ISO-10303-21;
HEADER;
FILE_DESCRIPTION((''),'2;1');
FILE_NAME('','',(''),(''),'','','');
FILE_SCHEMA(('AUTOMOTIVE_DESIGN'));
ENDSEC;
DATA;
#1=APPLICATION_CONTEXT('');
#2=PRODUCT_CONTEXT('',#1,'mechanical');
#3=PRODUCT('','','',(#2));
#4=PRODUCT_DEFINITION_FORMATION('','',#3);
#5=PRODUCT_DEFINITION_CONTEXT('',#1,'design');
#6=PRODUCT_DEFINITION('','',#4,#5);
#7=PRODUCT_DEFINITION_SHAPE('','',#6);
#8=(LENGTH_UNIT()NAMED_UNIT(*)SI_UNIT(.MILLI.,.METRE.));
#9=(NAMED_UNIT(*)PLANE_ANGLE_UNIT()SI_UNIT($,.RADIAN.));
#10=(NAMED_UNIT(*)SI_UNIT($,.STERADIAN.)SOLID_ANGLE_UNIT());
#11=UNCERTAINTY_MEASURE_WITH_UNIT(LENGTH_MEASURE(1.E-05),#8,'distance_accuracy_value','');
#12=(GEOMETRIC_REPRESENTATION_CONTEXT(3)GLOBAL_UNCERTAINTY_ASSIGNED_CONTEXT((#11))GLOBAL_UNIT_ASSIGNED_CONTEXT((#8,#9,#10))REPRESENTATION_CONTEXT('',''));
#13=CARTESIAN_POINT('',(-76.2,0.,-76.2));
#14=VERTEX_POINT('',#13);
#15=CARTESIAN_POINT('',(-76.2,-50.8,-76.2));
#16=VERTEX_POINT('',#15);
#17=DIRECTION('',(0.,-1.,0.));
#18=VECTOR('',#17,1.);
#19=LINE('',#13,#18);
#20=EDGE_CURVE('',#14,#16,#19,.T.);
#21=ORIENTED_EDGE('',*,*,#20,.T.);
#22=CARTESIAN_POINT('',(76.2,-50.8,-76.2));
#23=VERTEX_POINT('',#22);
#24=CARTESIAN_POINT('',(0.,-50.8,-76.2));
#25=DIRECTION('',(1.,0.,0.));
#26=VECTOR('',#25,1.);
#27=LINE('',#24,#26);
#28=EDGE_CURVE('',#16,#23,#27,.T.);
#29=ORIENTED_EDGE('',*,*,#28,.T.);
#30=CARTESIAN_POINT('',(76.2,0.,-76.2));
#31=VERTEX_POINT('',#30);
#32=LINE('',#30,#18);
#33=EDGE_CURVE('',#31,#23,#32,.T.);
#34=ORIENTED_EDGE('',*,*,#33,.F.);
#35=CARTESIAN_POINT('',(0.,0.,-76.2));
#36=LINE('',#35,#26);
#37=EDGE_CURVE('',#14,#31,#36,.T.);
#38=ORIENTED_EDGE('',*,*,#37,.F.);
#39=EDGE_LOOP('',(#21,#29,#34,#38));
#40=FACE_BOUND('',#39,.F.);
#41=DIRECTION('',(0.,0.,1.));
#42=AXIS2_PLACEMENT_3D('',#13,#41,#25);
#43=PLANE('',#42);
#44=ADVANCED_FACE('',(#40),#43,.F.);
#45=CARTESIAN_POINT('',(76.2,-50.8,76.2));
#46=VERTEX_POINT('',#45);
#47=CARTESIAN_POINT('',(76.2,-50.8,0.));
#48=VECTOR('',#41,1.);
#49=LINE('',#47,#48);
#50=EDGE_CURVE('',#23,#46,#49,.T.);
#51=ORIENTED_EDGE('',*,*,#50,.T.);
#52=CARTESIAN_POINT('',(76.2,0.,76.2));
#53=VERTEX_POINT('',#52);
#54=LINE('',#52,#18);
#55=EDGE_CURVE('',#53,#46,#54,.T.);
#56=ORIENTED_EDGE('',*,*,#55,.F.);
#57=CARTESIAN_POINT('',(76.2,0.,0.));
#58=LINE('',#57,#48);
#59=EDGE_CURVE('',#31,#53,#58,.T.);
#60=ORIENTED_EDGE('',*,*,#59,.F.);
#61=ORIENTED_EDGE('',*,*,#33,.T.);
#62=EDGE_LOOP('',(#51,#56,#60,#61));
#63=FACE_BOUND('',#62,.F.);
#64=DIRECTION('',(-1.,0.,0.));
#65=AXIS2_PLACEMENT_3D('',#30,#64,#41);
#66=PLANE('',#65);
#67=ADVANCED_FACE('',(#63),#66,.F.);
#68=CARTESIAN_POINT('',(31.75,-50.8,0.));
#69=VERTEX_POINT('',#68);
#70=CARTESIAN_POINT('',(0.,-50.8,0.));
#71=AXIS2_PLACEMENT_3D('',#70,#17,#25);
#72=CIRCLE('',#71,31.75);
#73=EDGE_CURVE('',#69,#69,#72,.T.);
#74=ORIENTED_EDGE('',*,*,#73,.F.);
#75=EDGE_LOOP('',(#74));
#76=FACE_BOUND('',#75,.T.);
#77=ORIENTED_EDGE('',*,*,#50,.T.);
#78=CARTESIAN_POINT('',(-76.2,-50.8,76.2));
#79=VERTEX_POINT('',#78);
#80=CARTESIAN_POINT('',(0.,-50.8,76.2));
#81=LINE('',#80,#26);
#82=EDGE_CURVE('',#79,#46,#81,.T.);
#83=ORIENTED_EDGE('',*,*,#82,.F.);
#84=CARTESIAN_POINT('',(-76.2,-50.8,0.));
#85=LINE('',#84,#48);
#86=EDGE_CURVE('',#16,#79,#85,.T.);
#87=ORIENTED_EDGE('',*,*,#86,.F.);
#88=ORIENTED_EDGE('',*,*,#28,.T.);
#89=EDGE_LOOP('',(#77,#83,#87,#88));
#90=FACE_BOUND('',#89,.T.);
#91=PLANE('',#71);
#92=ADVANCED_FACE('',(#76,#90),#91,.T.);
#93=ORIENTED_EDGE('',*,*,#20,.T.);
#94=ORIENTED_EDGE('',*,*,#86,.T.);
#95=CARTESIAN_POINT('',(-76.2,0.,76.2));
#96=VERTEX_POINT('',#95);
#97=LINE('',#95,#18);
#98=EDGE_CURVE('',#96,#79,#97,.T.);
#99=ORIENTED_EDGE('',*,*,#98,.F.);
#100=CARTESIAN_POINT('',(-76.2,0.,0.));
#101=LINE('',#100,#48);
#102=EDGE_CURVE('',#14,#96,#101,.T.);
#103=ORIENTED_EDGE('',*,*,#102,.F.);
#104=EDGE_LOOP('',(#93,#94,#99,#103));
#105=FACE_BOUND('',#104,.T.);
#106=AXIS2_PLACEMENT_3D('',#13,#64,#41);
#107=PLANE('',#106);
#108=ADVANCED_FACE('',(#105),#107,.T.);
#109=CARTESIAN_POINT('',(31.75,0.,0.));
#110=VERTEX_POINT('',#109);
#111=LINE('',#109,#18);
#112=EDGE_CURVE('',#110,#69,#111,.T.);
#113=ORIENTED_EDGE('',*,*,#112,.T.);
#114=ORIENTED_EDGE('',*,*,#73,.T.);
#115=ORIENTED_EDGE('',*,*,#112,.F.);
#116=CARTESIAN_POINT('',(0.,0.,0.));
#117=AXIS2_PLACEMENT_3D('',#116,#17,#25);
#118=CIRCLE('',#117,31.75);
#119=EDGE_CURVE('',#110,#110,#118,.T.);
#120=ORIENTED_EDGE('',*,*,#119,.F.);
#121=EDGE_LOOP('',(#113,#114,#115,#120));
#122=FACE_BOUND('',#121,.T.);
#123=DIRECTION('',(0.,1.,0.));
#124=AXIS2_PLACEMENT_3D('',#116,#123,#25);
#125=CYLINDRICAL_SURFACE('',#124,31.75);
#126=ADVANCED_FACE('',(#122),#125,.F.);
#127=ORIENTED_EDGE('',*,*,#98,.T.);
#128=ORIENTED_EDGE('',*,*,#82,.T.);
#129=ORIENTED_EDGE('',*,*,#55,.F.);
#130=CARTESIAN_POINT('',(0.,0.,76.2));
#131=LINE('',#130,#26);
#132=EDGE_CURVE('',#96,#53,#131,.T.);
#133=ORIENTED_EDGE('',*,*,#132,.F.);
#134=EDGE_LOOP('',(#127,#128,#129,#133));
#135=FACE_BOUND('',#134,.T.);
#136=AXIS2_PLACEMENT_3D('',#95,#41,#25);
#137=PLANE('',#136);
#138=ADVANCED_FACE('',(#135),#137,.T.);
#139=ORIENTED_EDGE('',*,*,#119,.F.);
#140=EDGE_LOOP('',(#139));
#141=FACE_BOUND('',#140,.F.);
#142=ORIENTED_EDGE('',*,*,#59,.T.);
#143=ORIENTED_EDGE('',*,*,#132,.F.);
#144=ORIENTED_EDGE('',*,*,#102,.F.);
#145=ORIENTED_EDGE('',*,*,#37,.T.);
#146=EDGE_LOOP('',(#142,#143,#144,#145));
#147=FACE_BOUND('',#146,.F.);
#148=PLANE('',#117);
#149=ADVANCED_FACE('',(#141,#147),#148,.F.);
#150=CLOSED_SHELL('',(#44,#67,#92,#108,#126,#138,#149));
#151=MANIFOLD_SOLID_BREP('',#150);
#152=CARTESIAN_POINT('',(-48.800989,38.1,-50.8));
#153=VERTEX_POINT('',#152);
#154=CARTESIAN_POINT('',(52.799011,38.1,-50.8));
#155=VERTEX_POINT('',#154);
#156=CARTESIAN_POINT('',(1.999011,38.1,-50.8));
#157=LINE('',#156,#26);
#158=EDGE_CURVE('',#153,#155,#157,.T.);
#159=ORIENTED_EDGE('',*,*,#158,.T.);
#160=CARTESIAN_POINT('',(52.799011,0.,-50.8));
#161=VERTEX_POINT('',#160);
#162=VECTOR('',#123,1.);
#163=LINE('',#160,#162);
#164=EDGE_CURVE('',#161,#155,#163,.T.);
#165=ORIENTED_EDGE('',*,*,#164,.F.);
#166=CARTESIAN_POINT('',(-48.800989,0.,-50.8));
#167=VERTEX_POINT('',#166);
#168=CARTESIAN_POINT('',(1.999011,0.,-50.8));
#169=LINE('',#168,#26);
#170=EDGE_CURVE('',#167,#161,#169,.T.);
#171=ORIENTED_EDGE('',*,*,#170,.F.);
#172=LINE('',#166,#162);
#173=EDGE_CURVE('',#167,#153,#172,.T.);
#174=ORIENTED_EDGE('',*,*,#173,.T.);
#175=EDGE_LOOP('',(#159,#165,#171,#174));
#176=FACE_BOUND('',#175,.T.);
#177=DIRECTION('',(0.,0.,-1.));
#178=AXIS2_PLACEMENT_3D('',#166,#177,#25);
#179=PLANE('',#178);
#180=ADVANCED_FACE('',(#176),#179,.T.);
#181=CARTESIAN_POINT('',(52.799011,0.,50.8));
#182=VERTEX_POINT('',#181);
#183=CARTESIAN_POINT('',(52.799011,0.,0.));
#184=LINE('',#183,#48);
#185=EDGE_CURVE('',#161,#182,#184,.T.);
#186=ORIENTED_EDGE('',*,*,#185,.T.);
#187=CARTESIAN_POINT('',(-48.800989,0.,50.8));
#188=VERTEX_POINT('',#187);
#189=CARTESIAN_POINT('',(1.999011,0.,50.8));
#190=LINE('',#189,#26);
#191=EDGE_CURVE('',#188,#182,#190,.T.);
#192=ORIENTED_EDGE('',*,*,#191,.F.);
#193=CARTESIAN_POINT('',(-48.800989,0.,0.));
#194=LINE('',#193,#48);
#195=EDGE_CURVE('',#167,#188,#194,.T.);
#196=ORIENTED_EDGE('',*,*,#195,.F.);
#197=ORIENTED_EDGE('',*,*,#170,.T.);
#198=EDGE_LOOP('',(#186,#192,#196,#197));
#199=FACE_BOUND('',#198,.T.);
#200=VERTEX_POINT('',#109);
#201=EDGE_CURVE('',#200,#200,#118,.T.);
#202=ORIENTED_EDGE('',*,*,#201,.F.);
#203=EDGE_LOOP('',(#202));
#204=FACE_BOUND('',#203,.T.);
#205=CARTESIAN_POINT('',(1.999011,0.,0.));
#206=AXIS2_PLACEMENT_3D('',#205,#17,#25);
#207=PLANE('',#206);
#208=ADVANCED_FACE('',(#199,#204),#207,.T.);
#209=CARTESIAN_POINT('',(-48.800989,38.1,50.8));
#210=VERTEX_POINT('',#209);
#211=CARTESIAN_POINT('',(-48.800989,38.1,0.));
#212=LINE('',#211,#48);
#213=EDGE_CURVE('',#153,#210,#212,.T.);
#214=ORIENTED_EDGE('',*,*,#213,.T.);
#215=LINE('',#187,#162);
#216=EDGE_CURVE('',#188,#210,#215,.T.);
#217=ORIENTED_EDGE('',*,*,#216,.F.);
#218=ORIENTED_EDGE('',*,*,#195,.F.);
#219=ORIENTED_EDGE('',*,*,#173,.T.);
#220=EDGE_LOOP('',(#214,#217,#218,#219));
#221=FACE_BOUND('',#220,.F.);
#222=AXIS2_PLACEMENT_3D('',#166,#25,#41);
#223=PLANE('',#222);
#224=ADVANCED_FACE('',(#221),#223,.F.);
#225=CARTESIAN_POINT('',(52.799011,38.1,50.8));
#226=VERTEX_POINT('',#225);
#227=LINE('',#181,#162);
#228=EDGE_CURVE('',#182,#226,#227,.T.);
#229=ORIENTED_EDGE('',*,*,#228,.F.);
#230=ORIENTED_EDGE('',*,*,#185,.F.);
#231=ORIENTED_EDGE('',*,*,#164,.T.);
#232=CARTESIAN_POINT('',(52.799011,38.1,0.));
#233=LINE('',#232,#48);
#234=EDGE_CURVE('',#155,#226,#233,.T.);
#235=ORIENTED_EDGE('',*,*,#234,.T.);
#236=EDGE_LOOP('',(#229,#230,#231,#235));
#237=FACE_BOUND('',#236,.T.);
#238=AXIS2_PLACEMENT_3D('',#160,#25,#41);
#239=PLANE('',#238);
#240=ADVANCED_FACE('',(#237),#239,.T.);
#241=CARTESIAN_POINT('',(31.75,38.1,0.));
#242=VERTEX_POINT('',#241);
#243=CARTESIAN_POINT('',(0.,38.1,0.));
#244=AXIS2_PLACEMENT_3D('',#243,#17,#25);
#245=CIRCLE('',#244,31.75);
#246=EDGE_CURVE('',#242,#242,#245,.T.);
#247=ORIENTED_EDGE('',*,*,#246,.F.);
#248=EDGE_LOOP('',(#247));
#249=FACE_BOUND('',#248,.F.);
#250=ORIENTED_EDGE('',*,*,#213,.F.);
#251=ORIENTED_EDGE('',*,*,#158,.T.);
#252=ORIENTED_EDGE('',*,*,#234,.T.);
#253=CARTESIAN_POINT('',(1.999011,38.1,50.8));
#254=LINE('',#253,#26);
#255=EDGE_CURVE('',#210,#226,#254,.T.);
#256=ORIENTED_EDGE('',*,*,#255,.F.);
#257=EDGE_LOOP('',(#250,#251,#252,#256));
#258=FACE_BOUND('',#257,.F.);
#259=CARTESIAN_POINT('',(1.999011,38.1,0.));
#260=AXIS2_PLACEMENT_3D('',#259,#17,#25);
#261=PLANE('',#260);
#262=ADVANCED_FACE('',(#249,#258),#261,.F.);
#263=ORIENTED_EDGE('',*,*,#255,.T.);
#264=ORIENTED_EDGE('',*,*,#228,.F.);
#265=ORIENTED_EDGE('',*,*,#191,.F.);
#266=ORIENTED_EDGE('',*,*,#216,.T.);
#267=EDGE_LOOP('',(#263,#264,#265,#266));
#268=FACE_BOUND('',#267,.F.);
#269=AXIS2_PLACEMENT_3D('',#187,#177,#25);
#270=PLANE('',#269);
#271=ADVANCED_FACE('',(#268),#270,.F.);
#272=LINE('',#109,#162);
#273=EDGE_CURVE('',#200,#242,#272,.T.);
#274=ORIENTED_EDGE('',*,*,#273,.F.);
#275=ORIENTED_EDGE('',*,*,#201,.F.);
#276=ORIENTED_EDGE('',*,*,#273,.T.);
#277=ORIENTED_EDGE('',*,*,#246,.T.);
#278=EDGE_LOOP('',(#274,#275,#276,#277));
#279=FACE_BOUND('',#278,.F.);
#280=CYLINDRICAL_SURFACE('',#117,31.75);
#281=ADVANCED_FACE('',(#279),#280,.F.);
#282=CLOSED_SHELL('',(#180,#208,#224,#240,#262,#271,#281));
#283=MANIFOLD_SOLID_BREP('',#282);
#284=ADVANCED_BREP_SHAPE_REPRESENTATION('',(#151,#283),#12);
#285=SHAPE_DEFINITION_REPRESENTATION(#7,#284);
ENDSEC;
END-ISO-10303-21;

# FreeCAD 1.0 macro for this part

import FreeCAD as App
import Part
import Sketcher

V = App.Vector
Q = App.Units.Quantity


def add_polygon(sketch, points):
    """Adds a closed chain of lines whose ends are joined by coincident constraints."""
    first, n = sketch.GeometryCount, len(points)
    for a, b in zip(points, points[1:] + points[:1]):
        sketch.addGeometry(Part.LineSegment(App.Vector(*a, 0), App.Vector(*b, 0)), False)
    for i in range(n):
        sketch.addConstraint(Sketcher.Constraint("Coincident", first + i, 2, first + (i + 1) % n, 1))

doc = App.newDocument("Part")
body = doc.addObject("PartDesign::Body", "Body")

# Sketch on XZ plane
sketch1 = body.newObject("Sketcher::SketchObject", "Sketch")
sketch1.AttachmentSupport = (doc.getObject("XZ_Plane"), [""])
sketch1.MapMode = "FlatFace"
add_polygon(sketch1, [(-49, 51), (-49, -51), (53, -51), (53, 51)])  # lines 0-3
sketch1.addGeometry(Part.Circle(V(0, 0, 0), V(0, 0, 1), 32), False)  # 4
sketch1.addConstraint([
    Sketcher.Constraint("Vertical", 0),
    Sketcher.Constraint("Horizontal", 1),
    Sketcher.Constraint("Vertical", 2),
    Sketcher.Constraint("Horizontal", 3),
    Sketcher.Constraint("Coincident", 4, 3, -1, 1),
    Sketcher.Constraint("Equal", 3, 0),
    Sketcher.Constraint("Diameter", 4, Q("2.5 in")),
    Sketcher.Constraint("DistanceX", 1, 1, 1, 2, Q("4 in")),
    Sketcher.Constraint("DistanceY", 0, 2, -1, 1, Q("2 in")),
    Sketcher.Constraint("DistanceX", 0, 2, -1, 1, 48.800989),
])
pad1 = body.newObject("PartDesign::Pad", "Pad")
pad1.Profile = sketch1
pad1.Length = Q("1.5 in")
pad1.Reversed = True
body2 = doc.addObject("PartDesign::Body", "Body001")

# Sketch on XZ plane
sketch2 = body2.newObject("Sketcher::SketchObject", "Sketch001")
sketch2.AttachmentSupport = (doc.getObject("XZ_Plane001"), [""])
sketch2.MapMode = "FlatFace"
add_polygon(sketch2, [(-76, 76), (-76, -76), (76, -76), (76, 76)])  # lines 0-3
sketch2.addGeometry(Part.Circle(V(0, 0, 0), V(0, 0, 1), 32), False)  # 4
sketch2.addConstraint([
    Sketcher.Constraint("Vertical", 0),
    Sketcher.Constraint("Horizontal", 1),
    Sketcher.Constraint("Vertical", 2),
    Sketcher.Constraint("Horizontal", 3),
    Sketcher.Constraint("Coincident", 4, 3, -1, 1),
    Sketcher.Constraint("Symmetric", 0, 2, 2, 2, -1, 1),
    Sketcher.Constraint("Equal", 3, 0),
    Sketcher.Constraint("Diameter", 4, Q("2.5 in")),
    Sketcher.Constraint("DistanceX", 1, 1, 1, 2, Q("6 in")),
])
pad2 = body2.newObject("PartDesign::Pad", "Pad001")
pad2.Profile = sketch2
pad2.Length = Q("2 in")

doc.recompute()
